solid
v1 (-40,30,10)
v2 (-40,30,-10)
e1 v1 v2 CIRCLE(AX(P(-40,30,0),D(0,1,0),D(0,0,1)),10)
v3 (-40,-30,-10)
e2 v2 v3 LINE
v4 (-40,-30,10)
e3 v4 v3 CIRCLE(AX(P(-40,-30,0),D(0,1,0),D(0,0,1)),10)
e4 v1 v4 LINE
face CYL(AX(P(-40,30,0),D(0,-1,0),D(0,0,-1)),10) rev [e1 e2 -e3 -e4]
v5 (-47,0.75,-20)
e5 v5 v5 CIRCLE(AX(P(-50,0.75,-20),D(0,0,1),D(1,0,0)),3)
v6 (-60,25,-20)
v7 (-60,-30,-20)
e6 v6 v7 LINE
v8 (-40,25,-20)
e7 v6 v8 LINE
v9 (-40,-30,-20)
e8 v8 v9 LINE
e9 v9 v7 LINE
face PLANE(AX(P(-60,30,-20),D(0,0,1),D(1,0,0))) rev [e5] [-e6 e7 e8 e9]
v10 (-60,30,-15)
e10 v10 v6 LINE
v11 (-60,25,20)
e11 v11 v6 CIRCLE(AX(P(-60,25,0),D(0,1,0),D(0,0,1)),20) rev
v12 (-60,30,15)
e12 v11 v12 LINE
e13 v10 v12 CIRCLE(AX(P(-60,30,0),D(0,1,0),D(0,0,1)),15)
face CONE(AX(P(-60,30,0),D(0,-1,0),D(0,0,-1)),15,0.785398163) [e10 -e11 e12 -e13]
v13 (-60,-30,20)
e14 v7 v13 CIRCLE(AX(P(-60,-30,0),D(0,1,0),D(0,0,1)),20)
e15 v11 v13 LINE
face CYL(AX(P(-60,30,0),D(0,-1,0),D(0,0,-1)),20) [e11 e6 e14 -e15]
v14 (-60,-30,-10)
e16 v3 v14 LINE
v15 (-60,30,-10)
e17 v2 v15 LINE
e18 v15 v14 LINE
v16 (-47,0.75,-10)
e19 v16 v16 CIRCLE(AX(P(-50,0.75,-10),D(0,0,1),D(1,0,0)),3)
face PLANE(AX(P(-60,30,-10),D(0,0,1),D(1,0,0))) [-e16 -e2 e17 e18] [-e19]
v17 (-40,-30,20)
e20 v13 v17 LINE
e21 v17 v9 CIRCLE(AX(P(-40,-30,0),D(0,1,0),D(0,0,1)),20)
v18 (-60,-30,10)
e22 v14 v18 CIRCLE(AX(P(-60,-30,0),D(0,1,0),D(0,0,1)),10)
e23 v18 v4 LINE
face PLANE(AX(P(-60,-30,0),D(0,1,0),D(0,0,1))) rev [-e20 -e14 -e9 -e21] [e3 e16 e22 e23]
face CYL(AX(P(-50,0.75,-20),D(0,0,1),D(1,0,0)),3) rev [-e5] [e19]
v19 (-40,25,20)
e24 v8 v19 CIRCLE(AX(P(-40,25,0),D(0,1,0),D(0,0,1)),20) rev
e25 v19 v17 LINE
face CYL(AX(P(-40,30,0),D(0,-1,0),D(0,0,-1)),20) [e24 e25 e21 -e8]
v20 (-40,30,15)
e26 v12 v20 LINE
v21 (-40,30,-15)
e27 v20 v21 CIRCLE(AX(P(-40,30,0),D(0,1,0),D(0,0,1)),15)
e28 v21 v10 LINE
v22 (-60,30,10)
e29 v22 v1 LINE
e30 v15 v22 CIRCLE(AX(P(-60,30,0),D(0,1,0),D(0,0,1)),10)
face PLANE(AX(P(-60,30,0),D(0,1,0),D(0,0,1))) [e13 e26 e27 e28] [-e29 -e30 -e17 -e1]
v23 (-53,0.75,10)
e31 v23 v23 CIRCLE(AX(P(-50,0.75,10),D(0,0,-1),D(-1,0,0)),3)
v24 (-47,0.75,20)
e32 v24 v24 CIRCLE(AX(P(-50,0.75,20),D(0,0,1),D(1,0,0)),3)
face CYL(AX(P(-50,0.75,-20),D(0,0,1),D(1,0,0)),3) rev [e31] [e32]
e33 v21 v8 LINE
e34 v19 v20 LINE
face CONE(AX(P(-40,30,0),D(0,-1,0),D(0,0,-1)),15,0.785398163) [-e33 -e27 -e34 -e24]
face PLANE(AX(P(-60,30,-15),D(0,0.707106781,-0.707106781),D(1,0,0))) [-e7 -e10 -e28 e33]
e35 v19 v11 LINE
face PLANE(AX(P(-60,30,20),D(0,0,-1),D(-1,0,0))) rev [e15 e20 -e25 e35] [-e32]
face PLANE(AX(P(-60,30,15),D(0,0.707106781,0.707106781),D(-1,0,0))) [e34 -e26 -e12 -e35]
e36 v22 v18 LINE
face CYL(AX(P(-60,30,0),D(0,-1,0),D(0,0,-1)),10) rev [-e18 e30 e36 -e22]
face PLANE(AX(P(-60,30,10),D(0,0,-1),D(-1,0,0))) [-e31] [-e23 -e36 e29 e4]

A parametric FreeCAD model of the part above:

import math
import FreeCAD as App
import Part
import Sketcher


def edges_at(feature, points):
    """Names of the edges that pass closest to the given points."""
    edges = feature.Shape.Edges
    near = lambda p: min(range(len(edges)), key=lambda i: edges[i].distToShape(Part.Vertex(*p))[0])
    return sorted({f"Edge{near(p) + 1}" for p in points})

doc = App.newDocument("Part")
params = doc.addObject("Spreadsheet::Sheet", "Params")
for row, (alias, value) in enumerate([
    ("sketch1_radius", "20 mm"),
    ("sketch1_radius2", "10 mm"),
    ("sketch1_width", "20 mm"),
    ("pad1_length", "60 mm"),
    ("chamfer_size", "5 mm"),
    ("sketch2_diameter", "6 mm"),
], start=1):
    params.set(f"A{row}", alias)
    params.set(f"B{row}", "=" + value)
    params.setAlias(f"B{row}", alias)

body = doc.addObject("PartDesign::Body", "Body")

# Sketch on XZ plane
sketch1 = doc.addObject("Sketcher::SketchObject", "Sketch")
body.addObject(sketch1)
sketch1.AttachmentSupport = (doc.XZ_Plane, [""])
sketch1.MapMode = "FlatFace"
sketch1.addGeometry(Part.LineSegment(App.Vector(-40, -20, 0), App.Vector(-60, -20, 0)), False)
sketch1.addGeometry(Part.ArcOfCircle(Part.Circle(App.Vector(-60, 0, 0), App.Vector(0, 0, 1), 20), math.radians(90), math.radians(270)), False)
sketch1.addGeometry(Part.LineSegment(App.Vector(-60, 20, 0), App.Vector(-40, 20, 0)), False)
sketch1.addGeometry(Part.ArcOfCircle(Part.Circle(App.Vector(-40, 0, 0), App.Vector(0, 0, 1), 20), math.radians(-90), math.radians(90)), False)
sketch1.addGeometry(Part.LineSegment(App.Vector(-60, -10, 0), App.Vector(-40, -10, 0)), False)
sketch1.addGeometry(Part.ArcOfCircle(Part.Circle(App.Vector(-40, 0, 0), App.Vector(0, 0, 1), 10), math.radians(-90), math.radians(90)), False)
sketch1.addGeometry(Part.LineSegment(App.Vector(-40, 10, 0), App.Vector(-60, 10, 0)), False)
sketch1.addGeometry(Part.ArcOfCircle(Part.Circle(App.Vector(-60, 0, 0), App.Vector(0, 0, 1), 10), math.radians(90), math.radians(270)), False)
sketch1.addConstraint(Sketcher.Constraint("Tangent", 0, 2, 1, 2))
sketch1.addConstraint(Sketcher.Constraint("Tangent", 1, 1, 2, 1))
sketch1.addConstraint(Sketcher.Constraint("Tangent", 2, 2, 3, 2))
sketch1.addConstraint(Sketcher.Constraint("Tangent", 3, 1, 0, 1))
sketch1.addConstraint(Sketcher.Constraint("Tangent", 4, 2, 5, 1))
sketch1.addConstraint(Sketcher.Constraint("Tangent", 5, 2, 6, 1))
sketch1.addConstraint(Sketcher.Constraint("Tangent", 6, 2, 7, 1))
sketch1.addConstraint(Sketcher.Constraint("Tangent", 7, 2, 4, 1))
sketch1.addConstraint(Sketcher.Constraint("Horizontal", 0))
sketch1.addConstraint(Sketcher.Constraint("Horizontal", 2))
sketch1.addConstraint(Sketcher.Constraint("Horizontal", 4))
sketch1.addConstraint(Sketcher.Constraint("Horizontal", 6))
sketch1.addConstraint(Sketcher.Constraint("Coincident", 5, 3, 3, 3))
sketch1.addConstraint(Sketcher.Constraint("PointOnObject", 1, 3, -1))
sketch1.addConstraint(Sketcher.Constraint("Vertical", 7, 3, 0, 2))
sketch1.addConstraint(Sketcher.Constraint("Radius", 1, 20.0))
sketch1.addConstraint(Sketcher.Constraint("Radius", 5, 10.0))
sketch1.addConstraint(Sketcher.Constraint("DistanceX", 0, 2, 0, 1, 20.0))
sketch1.addConstraint(Sketcher.Constraint("DistanceX", 1, 3, -1, 1, 60.0))
sketch1.setExpression("Constraints[15]", "Params.sketch1_radius")
sketch1.setExpression("Constraints[16]", "Params.sketch1_radius2")
sketch1.setExpression("Constraints[17]", "Params.sketch1_width")
pad1 = doc.addObject("PartDesign::Pad", "Pad")
body.addObject(pad1)
pad1.Profile = sketch1
pad1.setExpression("Length", "Params.pad1_length")
pad1.Midplane = True
doc.recompute()

chamfer = doc.addObject("PartDesign::Chamfer", "Chamfer")
body.addObject(chamfer)
chamfer.Base = (pad1, edges_at(pad1, [
    (-20, 30, 0),
    (-50, 30, -20),
    (-80, 30, 0),
    (-50, 30, 20),
]))
chamfer.setExpression("Size", "Params.chamfer_size")

# Sketch on XY plane
sketch2 = doc.addObject("Sketcher::SketchObject", "Sketch001")
body.addObject(sketch2)
sketch2.AttachmentSupport = (doc.XY_Plane, [""])
sketch2.MapMode = "FlatFace"
sketch2.AttachmentOffset = App.Placement(App.Vector(0, 0, 20), App.Rotation())
sketch2.addGeometry(Part.Circle(App.Vector(-50, 0.8, 0), App.Vector(0, 0, 1), 3), False)
sketch2.addConstraint(Sketcher.Constraint("Diameter", 0, 6.0))
sketch2.addConstraint(Sketcher.Constraint("DistanceX", 0, 3, -1, 1, 50.0))
sketch2.addConstraint(Sketcher.Constraint("DistanceY", -1, 1, 0, 3, 0.75))
sketch2.setExpression("Constraints[0]", "Params.sketch2_diameter")
pocket1 = doc.addObject("PartDesign::Pocket", "Pocket")
body.addObject(pocket1)
pocket1.Profile = sketch2
pocket1.Type = "ThroughAll"

doc.recompute()
